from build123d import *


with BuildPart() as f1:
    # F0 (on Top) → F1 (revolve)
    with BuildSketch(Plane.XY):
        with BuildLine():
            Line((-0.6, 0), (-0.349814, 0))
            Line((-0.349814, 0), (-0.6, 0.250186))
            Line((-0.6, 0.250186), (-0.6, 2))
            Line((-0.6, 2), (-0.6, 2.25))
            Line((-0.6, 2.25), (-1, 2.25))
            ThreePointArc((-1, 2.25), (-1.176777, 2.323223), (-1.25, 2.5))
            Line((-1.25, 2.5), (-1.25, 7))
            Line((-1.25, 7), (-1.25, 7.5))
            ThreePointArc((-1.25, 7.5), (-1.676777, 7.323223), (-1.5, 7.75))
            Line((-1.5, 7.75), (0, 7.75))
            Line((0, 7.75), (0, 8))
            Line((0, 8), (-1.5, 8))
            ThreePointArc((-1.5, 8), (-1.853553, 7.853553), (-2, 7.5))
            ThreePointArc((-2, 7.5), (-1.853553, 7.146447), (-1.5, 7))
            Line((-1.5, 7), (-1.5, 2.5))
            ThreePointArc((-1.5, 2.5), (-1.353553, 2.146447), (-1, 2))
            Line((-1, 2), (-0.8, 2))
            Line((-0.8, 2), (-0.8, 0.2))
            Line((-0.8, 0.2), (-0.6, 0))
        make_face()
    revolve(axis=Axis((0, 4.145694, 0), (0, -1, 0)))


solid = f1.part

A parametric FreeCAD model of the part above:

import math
import FreeCAD as App
import Part
import Sketcher
Q = App.Units.Quantity

doc = App.newDocument("Part")
params = doc.addObject("Spreadsheet::Sheet", "Params")
for row, (alias, value) in enumerate([
    ("sketch1_radius", "0.500001 mm"),
    ("sketch1_height", "5 mm"),
    ("sketch1_width", "0.4 mm"),
    ("sketch1_width2", "1.5 mm"),
    ("sketch1_width3", "0.2 mm"),
    ("revolution_angle", "360 deg"),
], start=1):
    params.set(f"A{row}", alias)
    params.set(f"B{row}", "=" + value)
    params.setAlias(f"B{row}", alias)

body = doc.addObject("PartDesign::Body", "Body")

sketch1 = body.newObject("Sketcher::SketchObject", "Sketch")
sketch1.AttachmentSupport = (doc.getObject("XY_Plane"), [""])
sketch1.MapMode = "FlatFace"
sketch1.addGeometry(Part.LineSegment(App.Vector(-0.6, 0, 0), App.Vector(-0.35, 0, 0)), False)
sketch1.addGeometry(Part.LineSegment(App.Vector(-0.35, 0, 0), App.Vector(-0.6, 0.25, 0)), False)
sketch1.addGeometry(Part.LineSegment(App.Vector(-0.6, 0.25, 0), App.Vector(-0.6, 2.25, 0)), False)
sketch1.addGeometry(Part.LineSegment(App.Vector(-0.6, 2.25, 0), App.Vector(-1, 2.25, 0)), False)
sketch1.addGeometry(Part.ArcOfCircle(Part.Circle(App.Vector(-1, 2.5, 0), App.Vector(0, 0, 1), 0.25), math.radians(180), math.radians(270)), False)
sketch1.addGeometry(Part.LineSegment(App.Vector(-1.25, 2.5, 0), App.Vector(-1.25, 7.5, 0)), False)
sketch1.addGeometry(Part.ArcOfCircle(Part.Circle(App.Vector(-1.5, 7.5, 0), App.Vector(0, 0, 1), 0.25), math.radians(90), math.radians(360)), False)
sketch1.addGeometry(Part.LineSegment(App.Vector(-1.5, 7.75, 0), App.Vector(0, 7.75, 0)), False)
sketch1.addGeometry(Part.LineSegment(App.Vector(0, 7.75, 0), App.Vector(0, 8, 0)), False)
sketch1.addGeometry(Part.LineSegment(App.Vector(0, 8, 0), App.Vector(-1.5, 8, 0)), False)
sketch1.addGeometry(Part.ArcOfCircle(Part.Circle(App.Vector(-1.5, 7.5, 0), App.Vector(0, 0, 1), 0.5), math.radians(90), math.radians(180)), False)
sketch1.addGeometry(Part.ArcOfCircle(Part.Circle(App.Vector(-1.5, 7.5, 0), App.Vector(0, 0, 1), 0.5), math.radians(-180), math.radians(-90)), False)
sketch1.addGeometry(Part.LineSegment(App.Vector(-1.5, 7, 0), App.Vector(-1.5, 2.5, 0)), False)
sketch1.addGeometry(Part.ArcOfCircle(Part.Circle(App.Vector(-1, 2.5, 0), App.Vector(0, 0, 1), 0.5), math.radians(-180), math.radians(-90)), False)
sketch1.addGeometry(Part.LineSegment(App.Vector(-1, 2, 0), App.Vector(-0.8, 2, 0)), False)
sketch1.addGeometry(Part.LineSegment(App.Vector(-0.8, 2, 0), App.Vector(-0.8, 0.2, 0)), False)
sketch1.addGeometry(Part.LineSegment(App.Vector(-0.8, 0.2, 0), App.Vector(-0.6, 0, 0)), False)
sketch1.addConstraint(Sketcher.Constraint("Coincident", 0, 2, 1, 1))
sketch1.addConstraint(Sketcher.Constraint("Coincident", 1, 2, 2, 1))
sketch1.addConstraint(Sketcher.Constraint("Coincident", 2, 2, 3, 1))
sketch1.addConstraint(Sketcher.Constraint("Coincident", 3, 2, 4, 2))
sketch1.addConstraint(Sketcher.Constraint("Coincident", 4, 1, 5, 1))
sketch1.addConstraint(Sketcher.Constraint("Tangent", 5, 2, 6, 2))
sketch1.addConstraint(Sketcher.Constraint("Tangent", 6, 1, 7, 1))
sketch1.addConstraint(Sketcher.Constraint("Coincident", 7, 2, 8, 1))
sketch1.addConstraint(Sketcher.Constraint("Coincident", 8, 2, 9, 1))
sketch1.addConstraint(Sketcher.Constraint("Coincident", 9, 2, 10, 1))
sketch1.addConstraint(Sketcher.Constraint("Coincident", 10, 2, 11, 1))
sketch1.addConstraint(Sketcher.Constraint("Coincident", 11, 2, 12, 1))
sketch1.addConstraint(Sketcher.Constraint("Coincident", 12, 2, 13, 1))
sketch1.addConstraint(Sketcher.Constraint("Coincident", 13, 2, 14, 1))
sketch1.addConstraint(Sketcher.Constraint("Coincident", 14, 2, 15, 1))
sketch1.addConstraint(Sketcher.Constraint("Coincident", 15, 2, 16, 1))
sketch1.addConstraint(Sketcher.Constraint("Coincident", 16, 2, 0, 1))
sketch1.addConstraint(Sketcher.Constraint("Horizontal", 0))
sketch1.addConstraint(Sketcher.Constraint("Vertical", 2))
sketch1.addConstraint(Sketcher.Constraint("Horizontal", 3))
sketch1.addConstraint(Sketcher.Constraint("Vertical", 5))
sketch1.addConstraint(Sketcher.Constraint("Horizontal", 7))
sketch1.addConstraint(Sketcher.Constraint("Vertical", 8))
sketch1.addConstraint(Sketcher.Constraint("Horizontal", 9))
sketch1.addConstraint(Sketcher.Constraint("Vertical", 12))
sketch1.addConstraint(Sketcher.Constraint("Horizontal", 14))
sketch1.addConstraint(Sketcher.Constraint("Vertical", 15))
sketch1.addConstraint(Sketcher.Constraint("Coincident", 10, 3, 6, 3))
sketch1.addConstraint(Sketcher.Constraint("Coincident", 11, 3, 6, 3))
sketch1.addConstraint(Sketcher.Constraint("Coincident", 13, 3, 4, 3))
sketch1.addConstraint(Sketcher.Constraint("Equal", 4, 6))
sketch1.addConstraint(Sketcher.Constraint("Equal", 11, 13))
sketch1.addConstraint(Sketcher.Constraint("PointOnObject", 0, 2, -1))
sketch1.addConstraint(Sketcher.Constraint("PointOnObject", 7, 2, -2))
sketch1.addConstraint(Sketcher.Constraint("Parallel", 1, 16))
sketch1.addConstraint(Sketcher.Constraint("Horizontal", 13, 3, 4, 1))
sketch1.addConstraint(Sketcher.Constraint("Horizontal", 5, 2, 10, 2))
sketch1.addConstraint(Sketcher.Constraint("Horizontal", 4, 1, 12, 2))
sketch1.addConstraint(Sketcher.Constraint("Vertical", 13, 3, 3, 2))
sketch1.addConstraint(Sketcher.Constraint("Vertical", 6, 1, 9, 2))
sketch1.addConstraint(Sketcher.Constraint("Vertical", 9, 2, 11, 2))
sketch1.addConstraint(Sketcher.Constraint("Vertical", 3, 2, 13, 2))
sketch1.addConstraint(Sketcher.Constraint("Vertical", 2, 2, 16, 2))
sketch1.addConstraint(Sketcher.Constraint("Radius", 10, Q("0.500001 mm")))
sketch1.addConstraint(Sketcher.Constraint("DistanceY", 5, 1, 5, 2, Q("5 mm")))
sketch1.addConstraint(Sketcher.Constraint("Angle", 1, Q("135 deg")))
sketch1.addConstraint(Sketcher.Constraint("DistanceX", 3, 2, 3, 1, Q("0.4 mm")))
sketch1.addConstraint(Sketcher.Constraint("DistanceX", 7, 1, 7, 2, Q("1.5 mm")))
sketch1.addConstraint(Sketcher.Constraint("DistanceX", 14, 1, 14, 2, Q("0.2 mm")))
sketch1.addConstraint(Sketcher.Constraint("DistanceY", 15, 2, 15, 1, Q("1.8 mm")))
sketch1.addConstraint(Sketcher.Constraint("DistanceX", 0, 1, 0, 2, Q("0.250186 mm")))
sketch1.setExpression("Constraints[43]", "Params.sketch1_radius")
sketch1.setExpression("Constraints[44]", "Params.sketch1_height")
sketch1.setExpression("Constraints[46]", "Params.sketch1_width")
sketch1.setExpression("Constraints[47]", "Params.sketch1_width2")
sketch1.setExpression("Constraints[48]", "Params.sketch1_width3")
revolution = body.newObject("PartDesign::Revolution", "Revolution")
revolution.Profile = sketch1
revolution.ReferenceAxis = (sketch1, ["V_Axis"])
revolution.setExpression("Angle", "Params.revolution_angle")

doc.recompute()
